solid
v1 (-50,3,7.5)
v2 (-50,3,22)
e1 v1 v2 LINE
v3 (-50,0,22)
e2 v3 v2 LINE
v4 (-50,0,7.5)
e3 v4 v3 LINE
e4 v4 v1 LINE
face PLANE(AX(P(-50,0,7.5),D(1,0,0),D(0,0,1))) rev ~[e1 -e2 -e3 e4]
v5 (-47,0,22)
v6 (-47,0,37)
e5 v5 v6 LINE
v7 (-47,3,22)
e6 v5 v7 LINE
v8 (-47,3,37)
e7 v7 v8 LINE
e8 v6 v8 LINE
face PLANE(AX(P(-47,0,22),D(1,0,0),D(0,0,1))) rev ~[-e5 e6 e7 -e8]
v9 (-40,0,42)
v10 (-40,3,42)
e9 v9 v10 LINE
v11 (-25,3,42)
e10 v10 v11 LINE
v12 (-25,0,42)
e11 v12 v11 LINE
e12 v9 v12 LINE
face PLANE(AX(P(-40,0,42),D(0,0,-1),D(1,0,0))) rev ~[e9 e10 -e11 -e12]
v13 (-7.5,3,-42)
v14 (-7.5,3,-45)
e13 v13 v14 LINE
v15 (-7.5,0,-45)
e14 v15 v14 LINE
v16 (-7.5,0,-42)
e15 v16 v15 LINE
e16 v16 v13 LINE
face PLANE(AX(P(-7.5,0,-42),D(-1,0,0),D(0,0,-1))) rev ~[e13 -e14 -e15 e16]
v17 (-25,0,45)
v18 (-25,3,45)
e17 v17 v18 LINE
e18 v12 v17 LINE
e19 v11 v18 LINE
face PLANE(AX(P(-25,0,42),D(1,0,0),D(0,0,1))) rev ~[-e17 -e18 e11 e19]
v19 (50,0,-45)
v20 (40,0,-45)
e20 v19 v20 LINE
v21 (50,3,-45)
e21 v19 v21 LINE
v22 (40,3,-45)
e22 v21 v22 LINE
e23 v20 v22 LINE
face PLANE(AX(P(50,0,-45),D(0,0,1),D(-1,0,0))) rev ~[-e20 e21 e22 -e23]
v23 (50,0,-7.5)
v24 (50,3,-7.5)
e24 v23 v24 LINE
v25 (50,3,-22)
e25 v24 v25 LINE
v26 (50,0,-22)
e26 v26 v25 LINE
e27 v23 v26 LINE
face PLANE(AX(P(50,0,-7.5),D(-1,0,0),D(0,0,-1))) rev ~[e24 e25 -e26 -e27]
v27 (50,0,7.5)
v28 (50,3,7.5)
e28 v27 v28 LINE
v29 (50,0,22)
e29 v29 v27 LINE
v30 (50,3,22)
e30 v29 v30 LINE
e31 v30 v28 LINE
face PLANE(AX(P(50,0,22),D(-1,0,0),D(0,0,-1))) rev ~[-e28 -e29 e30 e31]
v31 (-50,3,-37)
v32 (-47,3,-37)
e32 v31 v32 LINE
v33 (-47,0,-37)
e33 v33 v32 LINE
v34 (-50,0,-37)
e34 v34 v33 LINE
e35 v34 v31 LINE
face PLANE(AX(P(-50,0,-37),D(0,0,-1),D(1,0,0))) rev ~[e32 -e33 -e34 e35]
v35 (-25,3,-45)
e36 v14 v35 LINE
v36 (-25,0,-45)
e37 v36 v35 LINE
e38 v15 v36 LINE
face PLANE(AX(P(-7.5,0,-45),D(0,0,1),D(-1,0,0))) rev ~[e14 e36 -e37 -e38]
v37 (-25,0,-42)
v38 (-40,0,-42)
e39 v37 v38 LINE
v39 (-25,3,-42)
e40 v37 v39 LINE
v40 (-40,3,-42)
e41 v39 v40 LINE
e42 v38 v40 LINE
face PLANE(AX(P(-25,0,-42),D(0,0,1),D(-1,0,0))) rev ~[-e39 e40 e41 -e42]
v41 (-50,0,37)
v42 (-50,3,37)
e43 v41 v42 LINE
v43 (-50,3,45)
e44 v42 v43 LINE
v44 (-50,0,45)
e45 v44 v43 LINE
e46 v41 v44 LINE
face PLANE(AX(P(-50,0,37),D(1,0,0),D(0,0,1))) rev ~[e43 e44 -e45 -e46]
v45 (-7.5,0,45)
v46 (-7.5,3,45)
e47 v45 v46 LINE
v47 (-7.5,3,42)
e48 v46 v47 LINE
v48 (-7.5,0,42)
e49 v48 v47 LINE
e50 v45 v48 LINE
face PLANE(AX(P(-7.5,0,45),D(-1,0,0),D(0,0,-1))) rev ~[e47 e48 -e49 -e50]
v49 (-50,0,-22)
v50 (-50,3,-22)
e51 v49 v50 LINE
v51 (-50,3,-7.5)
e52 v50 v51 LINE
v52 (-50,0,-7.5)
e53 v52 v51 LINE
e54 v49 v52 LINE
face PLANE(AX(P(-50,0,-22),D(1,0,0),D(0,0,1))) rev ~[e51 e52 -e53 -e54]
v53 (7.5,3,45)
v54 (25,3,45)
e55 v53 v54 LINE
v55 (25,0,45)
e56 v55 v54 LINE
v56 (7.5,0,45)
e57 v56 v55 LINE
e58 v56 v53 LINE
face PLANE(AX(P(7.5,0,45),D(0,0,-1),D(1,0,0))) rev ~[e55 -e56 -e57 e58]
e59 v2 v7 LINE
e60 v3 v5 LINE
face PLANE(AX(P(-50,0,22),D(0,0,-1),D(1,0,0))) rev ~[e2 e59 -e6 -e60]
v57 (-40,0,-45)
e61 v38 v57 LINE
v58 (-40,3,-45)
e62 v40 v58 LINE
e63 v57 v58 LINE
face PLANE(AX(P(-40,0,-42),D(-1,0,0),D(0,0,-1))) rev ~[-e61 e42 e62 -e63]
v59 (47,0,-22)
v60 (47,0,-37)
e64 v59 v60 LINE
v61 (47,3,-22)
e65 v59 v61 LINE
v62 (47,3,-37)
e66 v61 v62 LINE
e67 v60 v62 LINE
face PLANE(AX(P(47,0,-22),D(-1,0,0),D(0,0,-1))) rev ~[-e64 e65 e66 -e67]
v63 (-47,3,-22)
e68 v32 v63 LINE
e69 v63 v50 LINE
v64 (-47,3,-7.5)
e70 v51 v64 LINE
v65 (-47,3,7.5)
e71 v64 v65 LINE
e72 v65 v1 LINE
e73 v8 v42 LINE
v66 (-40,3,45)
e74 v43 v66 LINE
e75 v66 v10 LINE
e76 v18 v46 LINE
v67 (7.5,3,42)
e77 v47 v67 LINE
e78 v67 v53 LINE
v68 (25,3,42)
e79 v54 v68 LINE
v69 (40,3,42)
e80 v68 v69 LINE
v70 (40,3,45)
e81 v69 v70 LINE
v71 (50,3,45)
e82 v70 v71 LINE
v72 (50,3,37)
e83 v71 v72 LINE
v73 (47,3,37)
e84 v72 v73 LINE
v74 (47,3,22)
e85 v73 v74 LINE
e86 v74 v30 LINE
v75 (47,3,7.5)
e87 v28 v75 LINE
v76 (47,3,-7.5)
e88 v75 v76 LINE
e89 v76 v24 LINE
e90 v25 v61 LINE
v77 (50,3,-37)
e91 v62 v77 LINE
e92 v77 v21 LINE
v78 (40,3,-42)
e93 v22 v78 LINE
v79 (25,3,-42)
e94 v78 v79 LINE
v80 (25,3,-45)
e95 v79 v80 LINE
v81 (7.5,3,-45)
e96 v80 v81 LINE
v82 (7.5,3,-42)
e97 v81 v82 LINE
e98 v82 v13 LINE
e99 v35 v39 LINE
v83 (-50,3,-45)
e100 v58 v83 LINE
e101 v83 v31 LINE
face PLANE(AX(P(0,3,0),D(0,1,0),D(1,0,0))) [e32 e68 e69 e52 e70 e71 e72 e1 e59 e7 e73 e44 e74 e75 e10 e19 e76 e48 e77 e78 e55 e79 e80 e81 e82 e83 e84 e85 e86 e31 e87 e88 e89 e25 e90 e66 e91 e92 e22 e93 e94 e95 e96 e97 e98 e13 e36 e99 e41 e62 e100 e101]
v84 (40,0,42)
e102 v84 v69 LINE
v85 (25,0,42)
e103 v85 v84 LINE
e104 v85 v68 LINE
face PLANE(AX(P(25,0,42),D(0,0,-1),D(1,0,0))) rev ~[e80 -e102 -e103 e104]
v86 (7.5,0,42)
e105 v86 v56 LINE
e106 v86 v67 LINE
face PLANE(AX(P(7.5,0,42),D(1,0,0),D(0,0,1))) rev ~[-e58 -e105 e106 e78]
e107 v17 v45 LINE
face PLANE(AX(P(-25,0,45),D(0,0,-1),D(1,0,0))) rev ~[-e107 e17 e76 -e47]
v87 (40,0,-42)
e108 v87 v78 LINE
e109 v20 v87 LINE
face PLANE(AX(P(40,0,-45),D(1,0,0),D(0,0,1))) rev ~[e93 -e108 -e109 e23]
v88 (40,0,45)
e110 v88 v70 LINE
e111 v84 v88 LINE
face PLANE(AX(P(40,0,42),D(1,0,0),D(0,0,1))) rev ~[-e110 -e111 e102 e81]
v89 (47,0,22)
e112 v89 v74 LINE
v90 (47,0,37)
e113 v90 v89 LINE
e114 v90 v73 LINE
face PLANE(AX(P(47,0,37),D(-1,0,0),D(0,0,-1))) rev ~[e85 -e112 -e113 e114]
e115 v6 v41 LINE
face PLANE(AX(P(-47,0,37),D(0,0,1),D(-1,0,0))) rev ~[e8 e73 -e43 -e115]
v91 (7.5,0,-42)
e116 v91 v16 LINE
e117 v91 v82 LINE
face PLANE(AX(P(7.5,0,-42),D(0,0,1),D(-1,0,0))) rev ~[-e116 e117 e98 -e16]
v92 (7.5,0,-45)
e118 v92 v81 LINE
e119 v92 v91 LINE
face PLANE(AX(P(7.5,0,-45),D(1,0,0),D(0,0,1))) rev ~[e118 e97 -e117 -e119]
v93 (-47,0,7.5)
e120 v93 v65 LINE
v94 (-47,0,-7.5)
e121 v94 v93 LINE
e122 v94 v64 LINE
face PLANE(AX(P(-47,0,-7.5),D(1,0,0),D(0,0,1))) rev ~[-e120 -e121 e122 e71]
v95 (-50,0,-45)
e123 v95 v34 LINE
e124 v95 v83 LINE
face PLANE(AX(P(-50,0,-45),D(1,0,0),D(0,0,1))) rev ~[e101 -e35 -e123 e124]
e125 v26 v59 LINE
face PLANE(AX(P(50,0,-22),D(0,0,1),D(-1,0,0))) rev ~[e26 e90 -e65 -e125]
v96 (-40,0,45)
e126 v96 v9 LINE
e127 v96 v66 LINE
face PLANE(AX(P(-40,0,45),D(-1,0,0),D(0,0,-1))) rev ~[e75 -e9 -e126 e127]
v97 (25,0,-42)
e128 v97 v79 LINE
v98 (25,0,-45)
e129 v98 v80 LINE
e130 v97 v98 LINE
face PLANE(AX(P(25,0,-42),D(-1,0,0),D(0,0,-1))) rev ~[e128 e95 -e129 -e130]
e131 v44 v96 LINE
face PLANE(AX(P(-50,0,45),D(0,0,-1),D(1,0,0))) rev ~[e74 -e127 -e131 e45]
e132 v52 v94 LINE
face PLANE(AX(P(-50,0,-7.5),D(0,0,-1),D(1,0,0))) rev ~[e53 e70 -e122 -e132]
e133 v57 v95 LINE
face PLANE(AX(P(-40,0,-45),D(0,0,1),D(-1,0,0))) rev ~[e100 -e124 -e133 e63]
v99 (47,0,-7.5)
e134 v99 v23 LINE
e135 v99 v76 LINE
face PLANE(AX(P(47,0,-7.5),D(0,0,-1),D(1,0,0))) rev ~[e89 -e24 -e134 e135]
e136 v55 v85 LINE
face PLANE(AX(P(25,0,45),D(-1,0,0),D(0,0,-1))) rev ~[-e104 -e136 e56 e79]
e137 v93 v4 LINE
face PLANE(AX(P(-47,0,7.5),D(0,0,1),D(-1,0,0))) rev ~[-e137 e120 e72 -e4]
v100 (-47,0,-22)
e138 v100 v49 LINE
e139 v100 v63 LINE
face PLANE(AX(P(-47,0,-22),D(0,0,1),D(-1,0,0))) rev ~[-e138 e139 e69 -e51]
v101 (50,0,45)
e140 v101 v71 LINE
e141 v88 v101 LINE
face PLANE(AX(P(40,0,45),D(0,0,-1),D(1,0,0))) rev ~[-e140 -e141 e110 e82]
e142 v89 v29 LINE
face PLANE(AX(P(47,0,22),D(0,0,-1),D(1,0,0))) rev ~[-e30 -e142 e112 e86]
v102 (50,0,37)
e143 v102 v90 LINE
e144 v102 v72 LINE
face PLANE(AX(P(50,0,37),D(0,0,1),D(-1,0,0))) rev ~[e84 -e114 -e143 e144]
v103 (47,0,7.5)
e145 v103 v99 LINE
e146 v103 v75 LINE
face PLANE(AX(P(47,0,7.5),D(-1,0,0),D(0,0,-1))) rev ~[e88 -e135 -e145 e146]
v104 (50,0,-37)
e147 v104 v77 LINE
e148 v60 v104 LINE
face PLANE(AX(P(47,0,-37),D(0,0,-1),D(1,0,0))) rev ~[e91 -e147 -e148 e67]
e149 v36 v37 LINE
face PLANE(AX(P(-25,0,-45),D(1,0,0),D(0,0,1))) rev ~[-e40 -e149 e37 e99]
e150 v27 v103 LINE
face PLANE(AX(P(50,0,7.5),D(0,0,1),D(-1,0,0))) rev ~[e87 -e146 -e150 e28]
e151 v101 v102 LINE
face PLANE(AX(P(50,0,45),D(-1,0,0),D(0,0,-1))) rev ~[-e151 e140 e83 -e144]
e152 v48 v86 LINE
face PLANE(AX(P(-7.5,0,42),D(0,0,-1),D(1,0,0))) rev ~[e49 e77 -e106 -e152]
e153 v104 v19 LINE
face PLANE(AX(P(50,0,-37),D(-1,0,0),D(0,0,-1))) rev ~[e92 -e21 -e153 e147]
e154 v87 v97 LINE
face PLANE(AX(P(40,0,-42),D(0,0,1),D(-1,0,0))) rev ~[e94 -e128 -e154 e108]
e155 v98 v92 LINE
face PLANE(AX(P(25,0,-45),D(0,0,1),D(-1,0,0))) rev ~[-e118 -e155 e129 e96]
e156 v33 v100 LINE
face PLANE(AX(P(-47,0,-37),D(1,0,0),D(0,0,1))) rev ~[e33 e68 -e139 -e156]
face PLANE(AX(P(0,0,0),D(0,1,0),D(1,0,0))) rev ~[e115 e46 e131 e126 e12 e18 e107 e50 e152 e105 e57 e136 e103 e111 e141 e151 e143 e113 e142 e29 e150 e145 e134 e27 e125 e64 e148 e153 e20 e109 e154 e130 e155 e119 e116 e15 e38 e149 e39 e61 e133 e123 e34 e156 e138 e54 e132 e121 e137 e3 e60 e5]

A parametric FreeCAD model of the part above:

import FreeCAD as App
import Part
import Sketcher

V = App.Vector
Q = App.Units.Quantity


def add_polygon(sketch, points):
    """Adds a closed chain of lines whose ends are joined by coincident constraints."""
    first, n = sketch.GeometryCount, len(points)
    for a, b in zip(points, points[1:] + points[:1]):
        sketch.addGeometry(Part.LineSegment(App.Vector(*a, 0), App.Vector(*b, 0)), False)
    for i in range(n):
        sketch.addConstraint(Sketcher.Constraint("Coincident", first + i, 2, first + (i + 1) % n, 1))

doc = App.newDocument("Part")
params = doc.addObject("Spreadsheet::Sheet", "Params")
for row, (alias, value) in enumerate([
    ("sketch1_width", "10 mm"),
    ("sketch1_width2", "15 mm"),
    ("sketch1_width3", "3 mm"),
    ("sketch1_height", "8 mm"),
    ("sketch1_width4", "17.5 mm"),
    ("pad1_length", "3 mm"),
], start=1):
    params.set(f"A{row}", alias)
    params.set(f"B{row}", "=" + value)
    params.setAlias(f"B{row}", alias)

body = doc.addObject("PartDesign::Body", "Body")

sketch1 = body.newObject("Sketcher::SketchObject", "Sketch")
sketch1.AttachmentSupport = (doc.getObject("XZ_Plane"), [""])
sketch1.MapMode = "FlatFace"
add_polygon(sketch1, [(-50, 45), (-40, 45), (-40, 42), (-25, 42), (-25, 45), (-7.5, 45), (-7.5, 42), (7.5, 42), (7.5, 45), (25, 45), (25, 42), (40, 42), (40, 45), (50, 45), (50, 37), (47, 37), (47, 22), (50, 22), (50, 7.5), (47, 7.5), (47, -7.5), (50, -7.5), (50, -22), (47, -22), (47, -37), (50, -37), (50, -45), (40, -45), (40, -42), (25, -42), (25, -45), (7.5, -45), (7.5, -42), (-7.5, -42), (-7.5, -45), (-25, -45), (-25, -42), (-40, -42), (-40, -45), (-50, -45), (-50, -37), (-47, -37), (-47, -22), (-50, -22), (-50, -7.5), (-47, -7.5), (-47, 7.5), (-50, 7.5), (-50, 22), (-47, 22), (-47, 37), (-50, 37)])
sketch1.addConstraint([
    Sketcher.Constraint("Horizontal", 0),
    Sketcher.Constraint("Vertical", 1),
    Sketcher.Constraint("Horizontal", 2),
    Sketcher.Constraint("Vertical", 3),
    Sketcher.Constraint("Horizontal", 4),
    Sketcher.Constraint("Vertical", 5),
    Sketcher.Constraint("Horizontal", 6),
    Sketcher.Constraint("Vertical", 7),
    Sketcher.Constraint("Horizontal", 8),
    Sketcher.Constraint("Vertical", 9),
    Sketcher.Constraint("Horizontal", 10),
    Sketcher.Constraint("Vertical", 11),
    Sketcher.Constraint("Horizontal", 12),
    Sketcher.Constraint("Vertical", 13),
    Sketcher.Constraint("Horizontal", 14),
    Sketcher.Constraint("Vertical", 15),
    Sketcher.Constraint("Horizontal", 16),
    Sketcher.Constraint("Vertical", 17),
    Sketcher.Constraint("Horizontal", 18),
    Sketcher.Constraint("Vertical", 19),
    Sketcher.Constraint("Horizontal", 20),
    Sketcher.Constraint("Vertical", 21),
    Sketcher.Constraint("Horizontal", 22),
    Sketcher.Constraint("Vertical", 23),
    Sketcher.Constraint("Horizontal", 24),
    Sketcher.Constraint("Vertical", 25),
    Sketcher.Constraint("Horizontal", 26),
    Sketcher.Constraint("Vertical", 27),
    Sketcher.Constraint("Horizontal", 28),
    Sketcher.Constraint("Vertical", 29),
    Sketcher.Constraint("Horizontal", 30),
    Sketcher.Constraint("Vertical", 31),
    Sketcher.Constraint("Horizontal", 32),
    Sketcher.Constraint("Vertical", 33),
    Sketcher.Constraint("Horizontal", 34),
    Sketcher.Constraint("Vertical", 35),
    Sketcher.Constraint("Horizontal", 36),
    Sketcher.Constraint("Vertical", 37),
    Sketcher.Constraint("Horizontal", 38),
    Sketcher.Constraint("Vertical", 39),
    Sketcher.Constraint("Horizontal", 40),
    Sketcher.Constraint("Vertical", 41),
    Sketcher.Constraint("Horizontal", 42),
    Sketcher.Constraint("Vertical", 43),
    Sketcher.Constraint("Horizontal", 44),
    Sketcher.Constraint("Vertical", 45),
    Sketcher.Constraint("Horizontal", 46),
    Sketcher.Constraint("Vertical", 47),
    Sketcher.Constraint("Horizontal", 48),
    Sketcher.Constraint("Vertical", 49),
    Sketcher.Constraint("Horizontal", 50),
    Sketcher.Constraint("Vertical", 51),
    Sketcher.Constraint("Symmetric", 0, 2, 26, 2, -1, 1),
    Sketcher.Constraint("Symmetric", 2, 2, 28, 2, -1, 1),
    Sketcher.Constraint("Symmetric", 4, 2, 30, 2, -1, 1),
    Sketcher.Constraint("Symmetric", 6, 2, 32, 2, -1, 1),
    Sketcher.Constraint("Symmetric", 8, 2, 34, 2, -1, 1),
    Sketcher.Constraint("Symmetric", 10, 2, 36, 2, -1, 1),
    Sketcher.Constraint("Symmetric", 12, 2, 38, 2, -1, 1),
    Sketcher.Constraint("Symmetric", 14, 2, 40, 2, -1, 1),
    Sketcher.Constraint("Symmetric", 16, 2, 42, 2, -1, 1),
    Sketcher.Constraint("Symmetric", 18, 2, 44, 2, -1, 1),
    Sketcher.Constraint("Symmetric", 20, 2, 46, 2, -1, 1),
    Sketcher.Constraint("Symmetric", 22, 2, 48, 2, -1, 1),
    Sketcher.Constraint("Symmetric", 24, 2, 50, 2, -1, 1),
    Sketcher.Constraint("Symmetric", 4, 2, 7, 2, -2),
    Sketcher.Constraint("Symmetric", 2, 2, 9, 2, -2),
    Sketcher.Constraint("Symmetric", 0, 2, 11, 2, -2),
    Sketcher.Constraint("Symmetric", 24, 2, 39, 2, -2),
    Sketcher.Constraint("Symmetric", 22, 2, 41, 2, -2),
    Sketcher.Constraint("Symmetric", 20, 2, 43, 2, -2),
    Sketcher.Constraint("Horizontal", 0, 2, 3, 2),
    Sketcher.Constraint("Horizontal", 2, 2, 5, 2),
    Sketcher.Constraint("Vertical", 13, 2, 16, 2),
    Sketcher.Constraint("Vertical", 15, 2, 18, 2),
    Sketcher.Constraint("Equal", 2, 6),
    Sketcher.Constraint("Equal", 50, 1),
    Sketcher.Constraint("Equal", 36, 15),
    Sketcher.Constraint("Equal", 15, 19),
    Sketcher.Constraint("DistanceX", 0, 1, 0, 2, Q("10 mm")),
    Sketcher.Constraint("DistanceX", 2, 1, 2, 2, Q("15 mm")),
    Sketcher.Constraint("DistanceX", 14, 2, 14, 1, Q("3 mm")),
    Sketcher.Constraint("DistanceY", 13, 2, 13, 1, Q("8 mm")),
    Sketcher.Constraint("DistanceX", 4, 1, 4, 2, Q("17.5 mm")),
    Sketcher.Constraint("DistanceY", 17, 2, 17, 1, Q("14.5 mm")),
])
sketch1.setExpression("Constraints[131]", "Params.sketch1_width")
sketch1.setExpression("Constraints[132]", "Params.sketch1_width2")
sketch1.setExpression("Constraints[133]", "Params.sketch1_width3")
sketch1.setExpression("Constraints[134]", "Params.sketch1_height")
sketch1.setExpression("Constraints[135]", "Params.sketch1_width4")
pad1 = body.newObject("PartDesign::Pad", "Pad")
pad1.Profile = sketch1
pad1.setExpression("Length", "Params.pad1_length")
pad1.Reversed = True

doc.recompute()
